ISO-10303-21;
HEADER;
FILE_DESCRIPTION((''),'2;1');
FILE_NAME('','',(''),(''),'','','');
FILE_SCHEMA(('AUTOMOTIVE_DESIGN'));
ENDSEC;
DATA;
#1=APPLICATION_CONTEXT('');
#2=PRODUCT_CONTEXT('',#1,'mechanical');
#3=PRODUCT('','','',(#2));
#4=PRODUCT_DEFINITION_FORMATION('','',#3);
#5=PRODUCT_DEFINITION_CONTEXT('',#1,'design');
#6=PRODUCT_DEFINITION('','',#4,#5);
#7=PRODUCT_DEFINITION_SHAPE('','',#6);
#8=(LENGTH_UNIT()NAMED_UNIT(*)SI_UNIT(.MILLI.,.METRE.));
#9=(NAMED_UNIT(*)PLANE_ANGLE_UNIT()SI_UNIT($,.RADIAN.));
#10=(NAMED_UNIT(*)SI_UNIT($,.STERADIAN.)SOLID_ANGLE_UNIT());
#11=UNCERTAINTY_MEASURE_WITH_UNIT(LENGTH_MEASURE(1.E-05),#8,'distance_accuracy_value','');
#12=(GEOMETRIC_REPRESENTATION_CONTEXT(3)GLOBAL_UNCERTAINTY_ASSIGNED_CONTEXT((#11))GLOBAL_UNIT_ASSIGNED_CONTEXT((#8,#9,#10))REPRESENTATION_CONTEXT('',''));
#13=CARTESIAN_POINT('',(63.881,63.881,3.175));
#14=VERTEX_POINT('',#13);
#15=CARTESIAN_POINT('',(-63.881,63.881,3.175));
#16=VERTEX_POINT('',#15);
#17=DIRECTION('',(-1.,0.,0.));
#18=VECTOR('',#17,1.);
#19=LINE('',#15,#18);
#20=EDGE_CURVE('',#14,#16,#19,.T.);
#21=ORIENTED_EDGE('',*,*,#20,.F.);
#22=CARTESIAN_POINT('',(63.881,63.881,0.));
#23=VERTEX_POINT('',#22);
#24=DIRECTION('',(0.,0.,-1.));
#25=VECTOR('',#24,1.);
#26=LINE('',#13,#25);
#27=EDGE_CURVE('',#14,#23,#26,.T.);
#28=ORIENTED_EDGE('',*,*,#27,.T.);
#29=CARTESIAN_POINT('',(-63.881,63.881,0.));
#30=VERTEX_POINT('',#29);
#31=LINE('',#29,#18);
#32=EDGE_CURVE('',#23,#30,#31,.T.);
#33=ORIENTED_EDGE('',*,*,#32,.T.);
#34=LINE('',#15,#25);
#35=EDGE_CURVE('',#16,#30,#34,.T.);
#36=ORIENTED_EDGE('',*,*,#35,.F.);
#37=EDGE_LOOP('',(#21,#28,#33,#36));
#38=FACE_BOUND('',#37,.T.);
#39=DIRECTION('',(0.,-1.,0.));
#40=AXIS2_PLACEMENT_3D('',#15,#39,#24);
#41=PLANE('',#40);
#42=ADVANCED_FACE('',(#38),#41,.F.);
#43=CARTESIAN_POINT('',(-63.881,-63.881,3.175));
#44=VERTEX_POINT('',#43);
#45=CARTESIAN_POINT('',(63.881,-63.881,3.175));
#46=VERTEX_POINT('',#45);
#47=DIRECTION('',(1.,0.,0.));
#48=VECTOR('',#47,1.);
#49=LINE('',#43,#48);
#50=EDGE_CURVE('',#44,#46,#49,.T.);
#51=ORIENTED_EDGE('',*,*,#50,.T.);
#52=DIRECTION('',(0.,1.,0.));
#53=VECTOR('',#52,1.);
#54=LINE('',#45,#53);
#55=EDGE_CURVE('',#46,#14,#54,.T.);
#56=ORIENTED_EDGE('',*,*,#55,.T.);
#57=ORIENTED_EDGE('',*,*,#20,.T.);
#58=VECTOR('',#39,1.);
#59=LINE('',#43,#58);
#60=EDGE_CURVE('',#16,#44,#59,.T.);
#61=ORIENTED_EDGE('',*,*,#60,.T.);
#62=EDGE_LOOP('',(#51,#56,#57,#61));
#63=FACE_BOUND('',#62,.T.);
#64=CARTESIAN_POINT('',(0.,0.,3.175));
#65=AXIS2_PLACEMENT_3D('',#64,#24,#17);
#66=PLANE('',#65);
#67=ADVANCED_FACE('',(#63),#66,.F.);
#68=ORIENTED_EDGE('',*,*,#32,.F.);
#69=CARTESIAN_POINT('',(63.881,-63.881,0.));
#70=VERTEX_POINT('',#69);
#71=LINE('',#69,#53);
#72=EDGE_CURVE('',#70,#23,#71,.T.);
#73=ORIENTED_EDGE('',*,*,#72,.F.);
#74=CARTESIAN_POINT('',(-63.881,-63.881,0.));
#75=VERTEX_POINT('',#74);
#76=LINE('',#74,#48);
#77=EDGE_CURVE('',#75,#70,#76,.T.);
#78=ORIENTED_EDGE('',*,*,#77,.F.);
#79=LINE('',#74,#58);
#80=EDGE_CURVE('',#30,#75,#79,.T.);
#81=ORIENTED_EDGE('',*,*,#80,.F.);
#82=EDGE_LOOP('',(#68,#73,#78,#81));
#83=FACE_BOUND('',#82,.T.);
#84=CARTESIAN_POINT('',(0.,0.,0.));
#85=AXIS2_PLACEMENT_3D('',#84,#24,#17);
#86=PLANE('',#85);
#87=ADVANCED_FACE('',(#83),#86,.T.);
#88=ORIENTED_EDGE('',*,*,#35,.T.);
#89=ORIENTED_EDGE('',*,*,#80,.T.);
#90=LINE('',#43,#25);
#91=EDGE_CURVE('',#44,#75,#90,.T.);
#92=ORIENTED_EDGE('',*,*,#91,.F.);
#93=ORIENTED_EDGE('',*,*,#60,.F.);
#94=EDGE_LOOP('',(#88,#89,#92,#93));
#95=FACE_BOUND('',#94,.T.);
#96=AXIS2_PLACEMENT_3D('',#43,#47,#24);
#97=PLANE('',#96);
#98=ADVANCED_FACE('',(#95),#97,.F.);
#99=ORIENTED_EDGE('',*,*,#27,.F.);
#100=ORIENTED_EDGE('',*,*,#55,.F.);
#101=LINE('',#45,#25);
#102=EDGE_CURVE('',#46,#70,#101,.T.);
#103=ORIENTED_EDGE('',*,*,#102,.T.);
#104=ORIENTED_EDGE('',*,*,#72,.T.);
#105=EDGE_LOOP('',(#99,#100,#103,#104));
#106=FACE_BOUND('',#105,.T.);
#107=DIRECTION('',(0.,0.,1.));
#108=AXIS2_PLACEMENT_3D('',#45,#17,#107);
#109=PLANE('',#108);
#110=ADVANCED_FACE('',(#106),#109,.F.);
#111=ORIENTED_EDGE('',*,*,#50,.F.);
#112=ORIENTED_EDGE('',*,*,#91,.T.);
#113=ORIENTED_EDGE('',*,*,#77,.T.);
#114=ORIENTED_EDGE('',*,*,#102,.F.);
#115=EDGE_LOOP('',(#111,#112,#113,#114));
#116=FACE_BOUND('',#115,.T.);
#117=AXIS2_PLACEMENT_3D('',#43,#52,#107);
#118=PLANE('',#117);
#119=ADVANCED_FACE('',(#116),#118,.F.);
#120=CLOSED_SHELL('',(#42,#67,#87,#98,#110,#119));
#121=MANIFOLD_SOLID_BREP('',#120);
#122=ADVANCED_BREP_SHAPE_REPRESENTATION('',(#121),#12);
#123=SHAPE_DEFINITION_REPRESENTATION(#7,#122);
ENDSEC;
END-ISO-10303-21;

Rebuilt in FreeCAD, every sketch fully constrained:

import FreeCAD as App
import Part
import Sketcher
Q = App.Units.Quantity

doc = App.newDocument("Part")
body = doc.addObject("PartDesign::Body", "Body")

# Sketch on XY plane
sketch1 = body.newObject("Sketcher::SketchObject", "Sketch")
sketch1.AttachmentSupport = (doc.getObject("XY_Plane"), [""])
sketch1.MapMode = "FlatFace"
sketch1.addGeometry(Part.LineSegment(App.Vector(-64, 64, 0), App.Vector(-64, -64, 0)), False)
sketch1.addGeometry(Part.LineSegment(App.Vector(-64, -64, 0), App.Vector(64, -64, 0)), False)
sketch1.addGeometry(Part.LineSegment(App.Vector(64, -64, 0), App.Vector(64, 64, 0)), False)
sketch1.addGeometry(Part.LineSegment(App.Vector(64, 64, 0), App.Vector(-64, 64, 0)), False)
sketch1.addConstraint(Sketcher.Constraint("Coincident", 0, 2, 1, 1))
sketch1.addConstraint(Sketcher.Constraint("Coincident", 1, 2, 2, 1))
sketch1.addConstraint(Sketcher.Constraint("Coincident", 2, 2, 3, 1))
sketch1.addConstraint(Sketcher.Constraint("Coincident", 3, 2, 0, 1))
sketch1.addConstraint(Sketcher.Constraint("Vertical", 0))
sketch1.addConstraint(Sketcher.Constraint("Horizontal", 1))
sketch1.addConstraint(Sketcher.Constraint("Vertical", 2))
sketch1.addConstraint(Sketcher.Constraint("Horizontal", 3))
sketch1.addConstraint(Sketcher.Constraint("Symmetric", 0, 2, 2, 2, -1, 1))
sketch1.addConstraint(Sketcher.Constraint("Equal", 3, 0))
sketch1.addConstraint(Sketcher.Constraint("DistanceX", 1, 1, 1, 2, Q("5.03 in")))
pad1 = body.newObject("PartDesign::Pad", "Pad")
pad1.Profile = sketch1
pad1.Length = Q("0.125 in")

doc.recompute()
